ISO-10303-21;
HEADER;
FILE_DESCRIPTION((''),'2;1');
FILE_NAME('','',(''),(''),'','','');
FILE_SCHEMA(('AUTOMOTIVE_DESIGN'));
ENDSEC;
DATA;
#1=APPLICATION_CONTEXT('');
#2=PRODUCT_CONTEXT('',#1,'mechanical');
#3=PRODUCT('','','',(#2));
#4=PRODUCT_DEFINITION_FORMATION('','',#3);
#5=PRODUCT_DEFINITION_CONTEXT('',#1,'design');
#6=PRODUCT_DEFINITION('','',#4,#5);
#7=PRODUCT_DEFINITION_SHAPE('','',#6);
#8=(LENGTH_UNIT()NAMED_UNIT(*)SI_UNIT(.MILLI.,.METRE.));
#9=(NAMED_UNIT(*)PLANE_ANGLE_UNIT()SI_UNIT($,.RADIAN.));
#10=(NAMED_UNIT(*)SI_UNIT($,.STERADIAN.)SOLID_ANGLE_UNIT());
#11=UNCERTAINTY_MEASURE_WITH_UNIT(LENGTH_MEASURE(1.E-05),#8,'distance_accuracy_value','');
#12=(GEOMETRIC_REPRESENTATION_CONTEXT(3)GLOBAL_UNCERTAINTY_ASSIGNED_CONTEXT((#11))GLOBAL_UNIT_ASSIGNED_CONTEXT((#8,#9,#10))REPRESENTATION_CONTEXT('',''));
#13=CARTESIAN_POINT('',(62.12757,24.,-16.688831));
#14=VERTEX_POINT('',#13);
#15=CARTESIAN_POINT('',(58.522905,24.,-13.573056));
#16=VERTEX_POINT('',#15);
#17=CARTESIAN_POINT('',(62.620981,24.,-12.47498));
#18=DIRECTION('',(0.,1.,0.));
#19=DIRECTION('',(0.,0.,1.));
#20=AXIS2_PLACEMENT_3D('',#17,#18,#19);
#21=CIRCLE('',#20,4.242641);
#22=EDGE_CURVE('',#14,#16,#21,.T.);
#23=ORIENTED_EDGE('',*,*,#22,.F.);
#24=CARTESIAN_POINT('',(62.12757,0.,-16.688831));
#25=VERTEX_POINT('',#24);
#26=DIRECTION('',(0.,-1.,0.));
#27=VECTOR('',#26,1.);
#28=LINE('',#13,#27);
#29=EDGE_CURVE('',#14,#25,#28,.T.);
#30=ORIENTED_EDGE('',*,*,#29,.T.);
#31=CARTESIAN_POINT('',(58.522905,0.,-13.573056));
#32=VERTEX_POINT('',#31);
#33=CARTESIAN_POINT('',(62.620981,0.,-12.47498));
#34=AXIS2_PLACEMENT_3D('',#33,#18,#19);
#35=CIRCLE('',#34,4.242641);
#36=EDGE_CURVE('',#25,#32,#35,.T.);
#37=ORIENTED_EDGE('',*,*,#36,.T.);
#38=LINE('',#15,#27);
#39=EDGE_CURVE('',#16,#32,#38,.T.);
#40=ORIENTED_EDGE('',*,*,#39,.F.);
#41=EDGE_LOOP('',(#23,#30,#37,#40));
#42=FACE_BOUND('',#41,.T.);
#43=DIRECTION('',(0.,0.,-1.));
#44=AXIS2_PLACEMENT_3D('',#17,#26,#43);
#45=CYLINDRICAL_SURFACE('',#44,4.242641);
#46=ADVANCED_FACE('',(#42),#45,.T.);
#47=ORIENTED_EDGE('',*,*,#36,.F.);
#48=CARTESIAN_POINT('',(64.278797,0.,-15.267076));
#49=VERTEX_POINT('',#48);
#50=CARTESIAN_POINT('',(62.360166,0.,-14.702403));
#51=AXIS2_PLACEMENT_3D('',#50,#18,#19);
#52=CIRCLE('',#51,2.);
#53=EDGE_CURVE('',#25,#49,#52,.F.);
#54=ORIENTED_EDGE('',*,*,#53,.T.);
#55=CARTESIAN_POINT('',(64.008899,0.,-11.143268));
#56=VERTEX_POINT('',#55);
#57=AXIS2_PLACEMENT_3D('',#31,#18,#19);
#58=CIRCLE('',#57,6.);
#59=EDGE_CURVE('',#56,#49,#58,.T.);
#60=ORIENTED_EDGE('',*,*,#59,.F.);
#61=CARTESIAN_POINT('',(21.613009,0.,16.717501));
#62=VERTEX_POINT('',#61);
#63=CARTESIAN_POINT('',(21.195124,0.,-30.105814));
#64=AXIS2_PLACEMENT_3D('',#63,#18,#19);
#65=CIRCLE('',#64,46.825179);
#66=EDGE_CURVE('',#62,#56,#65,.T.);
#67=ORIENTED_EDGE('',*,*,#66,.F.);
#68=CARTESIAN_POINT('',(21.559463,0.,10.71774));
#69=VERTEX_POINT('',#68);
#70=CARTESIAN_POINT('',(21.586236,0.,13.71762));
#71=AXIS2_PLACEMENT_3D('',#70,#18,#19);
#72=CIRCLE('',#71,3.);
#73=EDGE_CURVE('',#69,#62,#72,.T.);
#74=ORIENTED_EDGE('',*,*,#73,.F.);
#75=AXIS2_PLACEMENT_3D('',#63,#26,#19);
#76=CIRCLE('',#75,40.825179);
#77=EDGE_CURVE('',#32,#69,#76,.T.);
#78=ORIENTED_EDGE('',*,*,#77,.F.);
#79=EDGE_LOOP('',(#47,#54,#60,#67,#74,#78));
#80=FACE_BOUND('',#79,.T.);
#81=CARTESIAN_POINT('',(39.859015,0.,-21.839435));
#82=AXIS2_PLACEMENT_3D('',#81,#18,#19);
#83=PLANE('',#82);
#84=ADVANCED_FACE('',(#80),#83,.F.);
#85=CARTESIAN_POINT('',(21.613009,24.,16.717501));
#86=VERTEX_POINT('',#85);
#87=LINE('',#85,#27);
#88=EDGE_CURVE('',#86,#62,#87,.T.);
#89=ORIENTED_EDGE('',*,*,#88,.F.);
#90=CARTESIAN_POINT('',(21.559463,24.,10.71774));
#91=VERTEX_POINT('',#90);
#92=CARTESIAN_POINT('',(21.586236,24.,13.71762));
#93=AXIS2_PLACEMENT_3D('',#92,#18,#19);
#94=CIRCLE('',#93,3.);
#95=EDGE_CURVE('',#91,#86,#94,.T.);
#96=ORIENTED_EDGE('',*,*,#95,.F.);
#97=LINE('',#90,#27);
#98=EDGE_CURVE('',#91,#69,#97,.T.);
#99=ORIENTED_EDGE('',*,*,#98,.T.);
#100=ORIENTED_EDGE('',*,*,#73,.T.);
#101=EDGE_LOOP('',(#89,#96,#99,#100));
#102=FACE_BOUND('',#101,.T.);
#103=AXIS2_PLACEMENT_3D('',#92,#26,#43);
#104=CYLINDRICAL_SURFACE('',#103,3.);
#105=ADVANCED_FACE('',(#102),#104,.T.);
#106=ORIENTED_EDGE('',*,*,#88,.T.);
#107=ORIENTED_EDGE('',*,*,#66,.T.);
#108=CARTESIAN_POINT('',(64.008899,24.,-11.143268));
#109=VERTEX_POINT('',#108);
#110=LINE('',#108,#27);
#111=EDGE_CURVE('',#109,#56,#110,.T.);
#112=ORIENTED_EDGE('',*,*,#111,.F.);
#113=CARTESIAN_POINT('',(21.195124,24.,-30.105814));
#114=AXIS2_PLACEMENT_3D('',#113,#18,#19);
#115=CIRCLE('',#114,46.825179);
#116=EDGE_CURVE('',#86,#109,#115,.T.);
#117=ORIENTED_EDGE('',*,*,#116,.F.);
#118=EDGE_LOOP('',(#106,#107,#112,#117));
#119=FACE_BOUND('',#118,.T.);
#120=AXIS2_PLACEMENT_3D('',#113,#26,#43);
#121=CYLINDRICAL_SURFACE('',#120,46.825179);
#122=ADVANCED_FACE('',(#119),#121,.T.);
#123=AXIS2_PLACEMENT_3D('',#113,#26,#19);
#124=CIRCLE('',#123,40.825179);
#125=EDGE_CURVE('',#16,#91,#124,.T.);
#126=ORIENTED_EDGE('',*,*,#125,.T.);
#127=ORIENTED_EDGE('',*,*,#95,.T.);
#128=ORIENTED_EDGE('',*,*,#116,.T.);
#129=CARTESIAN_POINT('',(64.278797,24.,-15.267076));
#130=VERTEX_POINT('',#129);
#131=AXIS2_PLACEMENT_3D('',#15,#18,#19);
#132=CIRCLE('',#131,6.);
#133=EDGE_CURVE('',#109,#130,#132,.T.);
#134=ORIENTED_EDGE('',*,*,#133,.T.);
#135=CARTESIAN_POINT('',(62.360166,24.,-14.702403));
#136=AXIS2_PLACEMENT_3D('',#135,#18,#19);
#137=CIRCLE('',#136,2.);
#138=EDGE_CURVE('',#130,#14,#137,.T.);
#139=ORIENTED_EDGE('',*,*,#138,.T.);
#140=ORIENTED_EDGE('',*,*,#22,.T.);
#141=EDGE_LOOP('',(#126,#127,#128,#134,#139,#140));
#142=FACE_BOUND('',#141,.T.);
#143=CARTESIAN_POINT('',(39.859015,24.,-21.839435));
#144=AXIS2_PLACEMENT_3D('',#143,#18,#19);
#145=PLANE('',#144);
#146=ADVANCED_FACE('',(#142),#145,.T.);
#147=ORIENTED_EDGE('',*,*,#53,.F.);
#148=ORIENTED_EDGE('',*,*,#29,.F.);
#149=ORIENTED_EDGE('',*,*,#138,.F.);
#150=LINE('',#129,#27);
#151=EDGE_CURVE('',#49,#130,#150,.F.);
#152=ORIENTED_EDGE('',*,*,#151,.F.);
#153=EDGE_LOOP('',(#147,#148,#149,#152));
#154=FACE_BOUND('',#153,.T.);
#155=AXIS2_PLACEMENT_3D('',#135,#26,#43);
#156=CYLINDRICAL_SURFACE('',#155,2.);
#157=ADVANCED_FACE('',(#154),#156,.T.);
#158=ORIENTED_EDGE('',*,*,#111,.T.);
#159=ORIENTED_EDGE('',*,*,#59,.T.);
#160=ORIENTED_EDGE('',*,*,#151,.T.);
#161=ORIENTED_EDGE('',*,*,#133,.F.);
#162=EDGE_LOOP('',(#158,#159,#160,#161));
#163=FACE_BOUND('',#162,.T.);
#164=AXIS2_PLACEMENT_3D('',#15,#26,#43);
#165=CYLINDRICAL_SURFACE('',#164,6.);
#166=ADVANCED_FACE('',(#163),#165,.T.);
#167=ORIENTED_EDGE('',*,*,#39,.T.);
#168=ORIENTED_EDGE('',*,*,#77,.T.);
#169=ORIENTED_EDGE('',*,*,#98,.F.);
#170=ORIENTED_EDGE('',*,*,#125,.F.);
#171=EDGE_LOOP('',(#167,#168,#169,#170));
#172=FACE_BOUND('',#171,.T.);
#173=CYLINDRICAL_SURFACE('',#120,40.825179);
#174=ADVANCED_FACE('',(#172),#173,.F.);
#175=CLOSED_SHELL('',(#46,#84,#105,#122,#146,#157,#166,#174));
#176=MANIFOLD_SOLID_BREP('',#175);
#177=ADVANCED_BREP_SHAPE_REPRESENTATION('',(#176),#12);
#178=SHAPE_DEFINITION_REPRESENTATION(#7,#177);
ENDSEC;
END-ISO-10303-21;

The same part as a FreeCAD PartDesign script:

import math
import FreeCAD as App
import Part
import Sketcher
Q = App.Units.Quantity


def edges_at(feature, points):
    """Names of the edges that pass closest to the given points."""
    edges = feature.Shape.Edges
    near = lambda p: min(range(len(edges)), key=lambda i: edges[i].distToShape(Part.Vertex(*p))[0])
    return sorted({f"Edge{near(p) + 1}" for p in points})

doc = App.newDocument("Part")
body = doc.addObject("PartDesign::Body", "Body")

sketch1 = body.newObject("Sketcher::SketchObject", "Sketch")
sketch1.AttachmentSupport = (doc.getObject("XZ_Plane"), [""])
sketch1.MapMode = "FlatFace"
sketch1.addGeometry(Part.ArcOfCircle(Part.Circle(App.Vector(58.5, -13.6, 0), App.Vector(0, 0, 1), 6), math.radians(-30), math.radians(24)), False)
sketch1.addGeometry(Part.ArcOfCircle(Part.Circle(App.Vector(62.6, -12.5, 0), App.Vector(0, 0, 1), 4.2), math.radians(-165), math.radians(-75)), False)
sketch1.addGeometry(Part.ArcOfCircle(Part.Circle(App.Vector(21.2, -30.1, 0), App.Vector(0, 0, 1), 40.8), math.radians(24), math.radians(89)), False)
sketch1.addGeometry(Part.ArcOfCircle(Part.Circle(App.Vector(21.6, 13.7, 0), App.Vector(0, 0, 1), 3), math.radians(89), math.radians(269)), False)
sketch1.addGeometry(Part.ArcOfCircle(Part.Circle(App.Vector(21.2, -30.1, 0), App.Vector(0, 0, 1), 46.8), math.radians(24), math.radians(89)), False)
sketch1.addConstraint(Sketcher.Constraint("Coincident", 0, 1, 1, 2))
sketch1.addConstraint(Sketcher.Constraint("Coincident", 1, 1, 2, 1))
sketch1.addConstraint(Sketcher.Constraint("Tangent", 2, 2, 3, 2))
sketch1.addConstraint(Sketcher.Constraint("Tangent", 3, 1, 4, 2))
sketch1.addConstraint(Sketcher.Constraint("Tangent", 4, 1, 0, 2))
sketch1.addConstraint(Sketcher.Constraint("Coincident", 4, 3, 2, 3))
sketch1.addConstraint(Sketcher.Constraint("Coincident", 1, 1, 0, 3))
sketch1.addConstraint(Sketcher.Constraint("Radius", 0, Q("6 mm")))
sketch1.addConstraint(Sketcher.Constraint("DistanceY", 0, 1, 0, 3, Q("3 mm")))
sketch1.addConstraint(Sketcher.Constraint("Radius", 1, Q("4.242641 mm")))
sketch1.addConstraint(Sketcher.Constraint("Radius", 2, Q("40.825179 mm")))
sketch1.addConstraint(Sketcher.Constraint("DistanceY", -1, 1, 3, 1, Q("16.717501 mm")))
sketch1.addConstraint(Sketcher.Constraint("DistanceX", -1, 1, 4, 1, Q("64.008899 mm")))
sketch1.addConstraint(Sketcher.Constraint("DistanceY", 1, 3, 3, 3, Q("26.1926 mm")))
sketch1.addConstraint(Sketcher.Constraint("DistanceX", -1, 1, 3, 1, Q("21.613009 mm")))
pad1 = body.newObject("PartDesign::Pad", "Pad")
pad1.Profile = sketch1
pad1.Length = 24
pad1.Reversed = True
doc.recompute()

fillet = body.newObject("PartDesign::Fillet", "Fillet")
fillet.Base = (pad1, edges_at(pad1, [(63.719, 12, -16.573)]))
fillet.Radius = 2

doc.recompute()
